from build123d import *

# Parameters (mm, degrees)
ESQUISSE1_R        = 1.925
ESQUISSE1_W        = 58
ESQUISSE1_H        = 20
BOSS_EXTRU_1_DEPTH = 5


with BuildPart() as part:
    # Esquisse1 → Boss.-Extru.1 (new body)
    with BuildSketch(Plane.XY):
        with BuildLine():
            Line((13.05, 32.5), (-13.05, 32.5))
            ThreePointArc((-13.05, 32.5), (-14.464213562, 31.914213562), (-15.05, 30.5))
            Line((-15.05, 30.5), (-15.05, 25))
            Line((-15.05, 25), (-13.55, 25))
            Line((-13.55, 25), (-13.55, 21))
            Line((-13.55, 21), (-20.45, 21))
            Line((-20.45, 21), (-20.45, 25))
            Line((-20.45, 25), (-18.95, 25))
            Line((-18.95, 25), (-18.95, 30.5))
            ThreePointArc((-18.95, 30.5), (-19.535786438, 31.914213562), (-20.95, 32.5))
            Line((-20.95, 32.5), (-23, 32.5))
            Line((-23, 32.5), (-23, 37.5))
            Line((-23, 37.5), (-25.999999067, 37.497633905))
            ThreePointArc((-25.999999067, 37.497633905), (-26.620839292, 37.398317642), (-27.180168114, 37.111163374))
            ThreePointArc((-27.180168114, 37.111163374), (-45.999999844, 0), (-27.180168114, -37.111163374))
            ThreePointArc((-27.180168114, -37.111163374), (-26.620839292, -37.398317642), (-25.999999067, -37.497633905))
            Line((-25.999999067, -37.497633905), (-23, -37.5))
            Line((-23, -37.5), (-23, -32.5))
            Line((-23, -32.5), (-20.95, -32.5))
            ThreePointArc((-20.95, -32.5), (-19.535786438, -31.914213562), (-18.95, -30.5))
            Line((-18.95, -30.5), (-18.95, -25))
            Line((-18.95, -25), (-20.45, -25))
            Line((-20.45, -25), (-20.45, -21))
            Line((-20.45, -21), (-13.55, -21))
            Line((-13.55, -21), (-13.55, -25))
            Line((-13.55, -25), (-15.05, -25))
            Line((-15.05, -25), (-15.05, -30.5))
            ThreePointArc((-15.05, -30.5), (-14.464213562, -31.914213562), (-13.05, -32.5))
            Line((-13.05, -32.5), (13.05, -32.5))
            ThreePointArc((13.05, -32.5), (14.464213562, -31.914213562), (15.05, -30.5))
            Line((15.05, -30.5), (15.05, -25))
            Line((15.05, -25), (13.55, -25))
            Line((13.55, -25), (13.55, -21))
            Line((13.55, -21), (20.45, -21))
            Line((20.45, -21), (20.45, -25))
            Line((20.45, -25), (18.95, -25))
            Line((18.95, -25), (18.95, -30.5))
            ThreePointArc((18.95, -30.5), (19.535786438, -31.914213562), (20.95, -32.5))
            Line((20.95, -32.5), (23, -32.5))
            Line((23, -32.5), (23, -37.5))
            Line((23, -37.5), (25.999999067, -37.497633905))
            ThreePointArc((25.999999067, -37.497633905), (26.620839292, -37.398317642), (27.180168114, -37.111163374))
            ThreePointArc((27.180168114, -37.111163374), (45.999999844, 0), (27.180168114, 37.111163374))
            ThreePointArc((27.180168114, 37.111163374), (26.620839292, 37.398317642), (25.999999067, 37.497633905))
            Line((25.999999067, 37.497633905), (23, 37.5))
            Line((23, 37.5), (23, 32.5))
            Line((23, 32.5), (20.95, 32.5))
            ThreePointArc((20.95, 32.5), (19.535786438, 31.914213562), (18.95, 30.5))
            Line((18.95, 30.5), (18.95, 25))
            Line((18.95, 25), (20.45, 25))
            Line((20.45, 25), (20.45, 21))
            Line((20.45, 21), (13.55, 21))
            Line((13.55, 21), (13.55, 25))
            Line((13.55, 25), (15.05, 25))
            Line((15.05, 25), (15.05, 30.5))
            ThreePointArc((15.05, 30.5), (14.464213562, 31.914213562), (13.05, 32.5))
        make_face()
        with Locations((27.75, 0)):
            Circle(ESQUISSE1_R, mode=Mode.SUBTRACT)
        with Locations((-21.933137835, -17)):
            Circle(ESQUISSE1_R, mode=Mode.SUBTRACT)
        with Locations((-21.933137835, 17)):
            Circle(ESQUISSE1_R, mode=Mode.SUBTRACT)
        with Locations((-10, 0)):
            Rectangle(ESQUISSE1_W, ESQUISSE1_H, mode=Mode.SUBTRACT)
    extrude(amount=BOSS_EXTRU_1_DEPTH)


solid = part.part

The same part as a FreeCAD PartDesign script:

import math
import FreeCAD as App
import Part
import Sketcher
Q = App.Units.Quantity

doc = App.newDocument("Part")
params = doc.addObject("Spreadsheet::Sheet", "Params")
for row, (alias, value) in enumerate([
    ("sketch1_radius", "2 mm"),
    ("sketch1_radius2", "46 mm"),
    ("sketch1_diameter", "3.85 mm"),
    ("sketch1_width", "58 mm"),
    ("sketch1_height", "4 mm"),
    ("pad1_length", "5 mm"),
], start=1):
    params.set(f"A{row}", alias)
    params.set(f"B{row}", "=" + value)
    params.setAlias(f"B{row}", alias)

body = doc.addObject("PartDesign::Body", "Body")

sketch1 = body.newObject("Sketcher::SketchObject", "Sketch")
sketch1.AttachmentSupport = (doc.getObject("XY_Plane"), [""])
sketch1.MapMode = "FlatFace"
sketch1.addGeometry(Part.LineSegment(App.Vector(13.1, 32.5, 0), App.Vector(-13.1, 32.5, 0)), False)
sketch1.addGeometry(Part.ArcOfCircle(Part.Circle(App.Vector(-13, 30.5, 0), App.Vector(0, 0, 1), 2), math.radians(90), math.radians(180)), False)
sketch1.addGeometry(Part.LineSegment(App.Vector(-15.1, 30.5, 0), App.Vector(-15.1, 25, 0)), False)
sketch1.addGeometry(Part.LineSegment(App.Vector(-15.1, 25, 0), App.Vector(-13.6, 25, 0)), False)
sketch1.addGeometry(Part.LineSegment(App.Vector(-13.6, 25, 0), App.Vector(-13.6, 21, 0)), False)
sketch1.addGeometry(Part.LineSegment(App.Vector(-13.6, 21, 0), App.Vector(-20.4, 21, 0)), False)
sketch1.addGeometry(Part.LineSegment(App.Vector(-20.4, 21, 0), App.Vector(-20.4, 25, 0)), False)
sketch1.addGeometry(Part.LineSegment(App.Vector(-20.4, 25, 0), App.Vector(-18.9, 25, 0)), False)
sketch1.addGeometry(Part.LineSegment(App.Vector(-18.9, 25, 0), App.Vector(-18.9, 30.5, 0)), False)
sketch1.addGeometry(Part.ArcOfCircle(Part.Circle(App.Vector(-21, 30.5, 0), App.Vector(0, 0, 1), 2), math.radians(0), math.radians(90)), False)
sketch1.addGeometry(Part.LineSegment(App.Vector(-20.9, 32.5, 0), App.Vector(-23, 32.5, 0)), False)
sketch1.addGeometry(Part.LineSegment(App.Vector(-23, 32.5, 0), App.Vector(-23, 37.5, 0)), False)
sketch1.addGeometry(Part.LineSegment(App.Vector(-23, 37.5, 0), App.Vector(-26, 37.5, 0)), False)
sketch1.addGeometry(Part.ArcOfCircle(Part.Circle(App.Vector(-26, 35.5, 0), App.Vector(0, 0, 1), 2), math.radians(90), math.radians(126)), False)
sketch1.addGeometry(Part.ArcOfCircle(Part.Circle(App.Vector(0, 0, 0), App.Vector(0, 0, 1), 46), math.radians(126), math.radians(234)), False)
sketch1.addGeometry(Part.ArcOfCircle(Part.Circle(App.Vector(-26, -35.5, 0), App.Vector(0, 0, 1), 2), math.radians(-126), math.radians(-90)), False)
sketch1.addGeometry(Part.LineSegment(App.Vector(-26, -37.5, 0), App.Vector(-23, -37.5, 0)), False)
sketch1.addGeometry(Part.LineSegment(App.Vector(-23, -37.5, 0), App.Vector(-23, -32.5, 0)), False)
sketch1.addGeometry(Part.LineSegment(App.Vector(-23, -32.5, 0), App.Vector(-20.9, -32.5, 0)), False)
sketch1.addGeometry(Part.ArcOfCircle(Part.Circle(App.Vector(-21, -30.5, 0), App.Vector(0, 0, 1), 2), math.radians(-90), math.radians(0)), False)
sketch1.addGeometry(Part.LineSegment(App.Vector(-18.9, -30.5, 0), App.Vector(-18.9, -25, 0)), False)
sketch1.addGeometry(Part.LineSegment(App.Vector(-18.9, -25, 0), App.Vector(-20.4, -25, 0)), False)
sketch1.addGeometry(Part.LineSegment(App.Vector(-20.4, -25, 0), App.Vector(-20.4, -21, 0)), False)
sketch1.addGeometry(Part.LineSegment(App.Vector(-20.4, -21, 0), App.Vector(-13.6, -21, 0)), False)
sketch1.addGeometry(Part.LineSegment(App.Vector(-13.6, -21, 0), App.Vector(-13.6, -25, 0)), False)
sketch1.addGeometry(Part.LineSegment(App.Vector(-13.6, -25, 0), App.Vector(-15.1, -25, 0)), False)
sketch1.addGeometry(Part.LineSegment(App.Vector(-15.1, -25, 0), App.Vector(-15.1, -30.5, 0)), False)
sketch1.addGeometry(Part.ArcOfCircle(Part.Circle(App.Vector(-13, -30.5, 0), App.Vector(0, 0, 1), 2), math.radians(-180), math.radians(-90)), False)
sketch1.addGeometry(Part.LineSegment(App.Vector(-13.1, -32.5, 0), App.Vector(13.1, -32.5, 0)), False)
sketch1.addGeometry(Part.ArcOfCircle(Part.Circle(App.Vector(13, -30.5, 0), App.Vector(0, 0, 1), 2), math.radians(-90), math.radians(0)), False)
sketch1.addGeometry(Part.LineSegment(App.Vector(15.1, -30.5, 0), App.Vector(15.1, -25, 0)), False)
sketch1.addGeometry(Part.LineSegment(App.Vector(15.1, -25, 0), App.Vector(13.6, -25, 0)), False)
sketch1.addGeometry(Part.LineSegment(App.Vector(13.6, -25, 0), App.Vector(13.6, -21, 0)), False)
sketch1.addGeometry(Part.LineSegment(App.Vector(13.6, -21, 0), App.Vector(20.4, -21, 0)), False)
sketch1.addGeometry(Part.LineSegment(App.Vector(20.4, -21, 0), App.Vector(20.4, -25, 0)), False)
sketch1.addGeometry(Part.LineSegment(App.Vector(20.4, -25, 0), App.Vector(18.9, -25, 0)), False)
sketch1.addGeometry(Part.LineSegment(App.Vector(18.9, -25, 0), App.Vector(18.9, -30.5, 0)), False)
sketch1.addGeometry(Part.ArcOfCircle(Part.Circle(App.Vector(21, -30.5, 0), App.Vector(0, 0, 1), 2), math.radians(-180), math.radians(-90)), False)
sketch1.addGeometry(Part.LineSegment(App.Vector(20.9, -32.5, 0), App.Vector(23, -32.5, 0)), False)
sketch1.addGeometry(Part.LineSegment(App.Vector(23, -32.5, 0), App.Vector(23, -37.5, 0)), False)
sketch1.addGeometry(Part.LineSegment(App.Vector(23, -37.5, 0), App.Vector(26, -37.5, 0)), False)
sketch1.addGeometry(Part.ArcOfCircle(Part.Circle(App.Vector(26, -35.5, 0), App.Vector(0, 0, 1), 2), math.radians(-90), math.radians(-54)), False)
sketch1.addGeometry(Part.ArcOfCircle(Part.Circle(App.Vector(0, 0, 0), App.Vector(0, 0, 1), 46), math.radians(-54), math.radians(54)), False)
sketch1.addGeometry(Part.ArcOfCircle(Part.Circle(App.Vector(26, 35.5, 0), App.Vector(0, 0, 1), 2), math.radians(54), math.radians(90)), False)
sketch1.addGeometry(Part.LineSegment(App.Vector(26, 37.5, 0), App.Vector(23, 37.5, 0)), False)
sketch1.addGeometry(Part.LineSegment(App.Vector(23, 37.5, 0), App.Vector(23, 32.5, 0)), False)
sketch1.addGeometry(Part.LineSegment(App.Vector(23, 32.5, 0), App.Vector(20.9, 32.5, 0)), False)
sketch1.addGeometry(Part.ArcOfCircle(Part.Circle(App.Vector(21, 30.5, 0), App.Vector(0, 0, 1), 2), math.radians(90), math.radians(180)), False)
sketch1.addGeometry(Part.LineSegment(App.Vector(18.9, 30.5, 0), App.Vector(18.9, 25, 0)), False)
sketch1.addGeometry(Part.LineSegment(App.Vector(18.9, 25, 0), App.Vector(20.4, 25, 0)), False)
sketch1.addGeometry(Part.LineSegment(App.Vector(20.4, 25, 0), App.Vector(20.4, 21, 0)), False)
sketch1.addGeometry(Part.LineSegment(App.Vector(20.4, 21, 0), App.Vector(13.6, 21, 0)), False)
sketch1.addGeometry(Part.LineSegment(App.Vector(13.6, 21, 0), App.Vector(13.6, 25, 0)), False)
sketch1.addGeometry(Part.LineSegment(App.Vector(13.6, 25, 0), App.Vector(15.1, 25, 0)), False)
sketch1.addGeometry(Part.LineSegment(App.Vector(15.1, 25, 0), App.Vector(15.1, 30.5, 0)), False)
sketch1.addGeometry(Part.ArcOfCircle(Part.Circle(App.Vector(13, 30.5, 0), App.Vector(0, 0, 1), 2), math.radians(0), math.radians(90)), False)
sketch1.addGeometry(Part.Circle(App.Vector(-21.9, -17, 0), App.Vector(0, 0, 1), 1.9), False)
sketch1.addGeometry(Part.LineSegment(App.Vector(19, -10, 0), App.Vector(-39, -10, 0)), False)
sketch1.addGeometry(Part.LineSegment(App.Vector(-39, -10, 0), App.Vector(-39, 10, 0)), False)
sketch1.addGeometry(Part.LineSegment(App.Vector(-39, 10, 0), App.Vector(19, 10, 0)), False)
sketch1.addGeometry(Part.LineSegment(App.Vector(19, 10, 0), App.Vector(19, -10, 0)), False)
sketch1.addGeometry(Part.Circle(App.Vector(-21.9, 17, 0), App.Vector(0, 0, 1), 1.9), False)
sketch1.addGeometry(Part.Circle(App.Vector(27.8, 0, 0), App.Vector(0, 0, 1), 1.9), False)
sketch1.addConstraint(Sketcher.Constraint("Tangent", 0, 2, 1, 1))
sketch1.addConstraint(Sketcher.Constraint("Tangent", 1, 2, 2, 1))
sketch1.addConstraint(Sketcher.Constraint("Coincident", 2, 2, 3, 1))
sketch1.addConstraint(Sketcher.Constraint("Coincident", 3, 2, 4, 1))
sketch1.addConstraint(Sketcher.Constraint("Coincident", 4, 2, 5, 1))
sketch1.addConstraint(Sketcher.Constraint("Coincident", 5, 2, 6, 1))
sketch1.addConstraint(Sketcher.Constraint("Coincident", 6, 2, 7, 1))
sketch1.addConstraint(Sketcher.Constraint("Coincident", 7, 2, 8, 1))
sketch1.addConstraint(Sketcher.Constraint("Tangent", 8, 2, 9, 1))
sketch1.addConstraint(Sketcher.Constraint("Tangent", 9, 2, 10, 1))
sketch1.addConstraint(Sketcher.Constraint("Coincident", 10, 2, 11, 1))
sketch1.addConstraint(Sketcher.Constraint("Coincident", 11, 2, 12, 1))
sketch1.addConstraint(Sketcher.Constraint("Tangent", 12, 2, 13, 1))
sketch1.addConstraint(Sketcher.Constraint("Tangent", 13, 2, 14, 1))
sketch1.addConstraint(Sketcher.Constraint("Tangent", 14, 2, 15, 1))
sketch1.addConstraint(Sketcher.Constraint("Tangent", 15, 2, 16, 1))
sketch1.addConstraint(Sketcher.Constraint("Coincident", 16, 2, 17, 1))
sketch1.addConstraint(Sketcher.Constraint("Coincident", 17, 2, 18, 1))
sketch1.addConstraint(Sketcher.Constraint("Tangent", 18, 2, 19, 1))
sketch1.addConstraint(Sketcher.Constraint("Tangent", 19, 2, 20, 1))
sketch1.addConstraint(Sketcher.Constraint("Coincident", 20, 2, 21, 1))
sketch1.addConstraint(Sketcher.Constraint("Coincident", 21, 2, 22, 1))
sketch1.addConstraint(Sketcher.Constraint("Coincident", 22, 2, 23, 1))
sketch1.addConstraint(Sketcher.Constraint("Coincident", 23, 2, 24, 1))
sketch1.addConstraint(Sketcher.Constraint("Coincident", 24, 2, 25, 1))
sketch1.addConstraint(Sketcher.Constraint("Coincident", 25, 2, 26, 1))
sketch1.addConstraint(Sketcher.Constraint("Tangent", 26, 2, 27, 1))
sketch1.addConstraint(Sketcher.Constraint("Tangent", 27, 2, 28, 1))
sketch1.addConstraint(Sketcher.Constraint("Tangent", 28, 2, 29, 1))
sketch1.addConstraint(Sketcher.Constraint("Tangent", 29, 2, 30, 1))
sketch1.addConstraint(Sketcher.Constraint("Coincident", 30, 2, 31, 1))
sketch1.addConstraint(Sketcher.Constraint("Coincident", 31, 2, 32, 1))
sketch1.addConstraint(Sketcher.Constraint("Coincident", 32, 2, 33, 1))
sketch1.addConstraint(Sketcher.Constraint("Coincident", 33, 2, 34, 1))
sketch1.addConstraint(Sketcher.Constraint("Coincident", 34, 2, 35, 1))
sketch1.addConstraint(Sketcher.Constraint("Coincident", 35, 2, 36, 1))
sketch1.addConstraint(Sketcher.Constraint("Tangent", 36, 2, 37, 1))
sketch1.addConstraint(Sketcher.Constraint("Tangent", 37, 2, 38, 1))
sketch1.addConstraint(Sketcher.Constraint("Coincident", 38, 2, 39, 1))
sketch1.addConstraint(Sketcher.Constraint("Coincident", 39, 2, 40, 1))
sketch1.addConstraint(Sketcher.Constraint("Tangent", 40, 2, 41, 1))
sketch1.addConstraint(Sketcher.Constraint("Tangent", 41, 2, 42, 1))
sketch1.addConstraint(Sketcher.Constraint("Tangent", 42, 2, 43, 1))
sketch1.addConstraint(Sketcher.Constraint("Tangent", 43, 2, 44, 1))
sketch1.addConstraint(Sketcher.Constraint("Coincident", 44, 2, 45, 1))
sketch1.addConstraint(Sketcher.Constraint("Coincident", 45, 2, 46, 1))
sketch1.addConstraint(Sketcher.Constraint("Tangent", 46, 2, 47, 1))
sketch1.addConstraint(Sketcher.Constraint("Tangent", 47, 2, 48, 1))
sketch1.addConstraint(Sketcher.Constraint("Coincident", 48, 2, 49, 1))
sketch1.addConstraint(Sketcher.Constraint("Coincident", 49, 2, 50, 1))
sketch1.addConstraint(Sketcher.Constraint("Coincident", 50, 2, 51, 1))
sketch1.addConstraint(Sketcher.Constraint("Coincident", 51, 2, 52, 1))
sketch1.addConstraint(Sketcher.Constraint("Coincident", 52, 2, 53, 1))
sketch1.addConstraint(Sketcher.Constraint("Coincident", 53, 2, 54, 1))
sketch1.addConstraint(Sketcher.Constraint("Tangent", 54, 2, 55, 1))
sketch1.addConstraint(Sketcher.Constraint("Tangent", 55, 2, 0, 1))
sketch1.addConstraint(Sketcher.Constraint("Coincident", 57, 2, 58, 1))
sketch1.addConstraint(Sketcher.Constraint("Coincident", 58, 2, 59, 1))
sketch1.addConstraint(Sketcher.Constraint("Coincident", 59, 2, 60, 1))
sketch1.addConstraint(Sketcher.Constraint("Coincident", 60, 2, 57, 1))
sketch1.addConstraint(Sketcher.Constraint("Horizontal", 0))
sketch1.addConstraint(Sketcher.Constraint("Vertical", 2))
sketch1.addConstraint(Sketcher.Constraint("Horizontal", 3))
sketch1.addConstraint(Sketcher.Constraint("Vertical", 4))
sketch1.addConstraint(Sketcher.Constraint("Horizontal", 5))
sketch1.addConstraint(Sketcher.Constraint("Vertical", 6))
sketch1.addConstraint(Sketcher.Constraint("Horizontal", 7))
sketch1.addConstraint(Sketcher.Constraint("Vertical", 8))
sketch1.addConstraint(Sketcher.Constraint("Horizontal", 10))
sketch1.addConstraint(Sketcher.Constraint("Vertical", 11))
sketch1.addConstraint(Sketcher.Constraint("Vertical", 17))
sketch1.addConstraint(Sketcher.Constraint("Horizontal", 18))
sketch1.addConstraint(Sketcher.Constraint("Vertical", 20))
sketch1.addConstraint(Sketcher.Constraint("Horizontal", 21))
sketch1.addConstraint(Sketcher.Constraint("Vertical", 22))
sketch1.addConstraint(Sketcher.Constraint("Horizontal", 23))
sketch1.addConstraint(Sketcher.Constraint("Vertical", 24))
sketch1.addConstraint(Sketcher.Constraint("Horizontal", 25))
sketch1.addConstraint(Sketcher.Constraint("Vertical", 26))
sketch1.addConstraint(Sketcher.Constraint("Horizontal", 28))
sketch1.addConstraint(Sketcher.Constraint("Vertical", 30))
sketch1.addConstraint(Sketcher.Constraint("Horizontal", 31))
sketch1.addConstraint(Sketcher.Constraint("Vertical", 32))
sketch1.addConstraint(Sketcher.Constraint("Horizontal", 33))
sketch1.addConstraint(Sketcher.Constraint("Vertical", 34))
sketch1.addConstraint(Sketcher.Constraint("Horizontal", 35))
sketch1.addConstraint(Sketcher.Constraint("Vertical", 36))
sketch1.addConstraint(Sketcher.Constraint("Horizontal", 38))
sketch1.addConstraint(Sketcher.Constraint("Vertical", 39))
sketch1.addConstraint(Sketcher.Constraint("Vertical", 45))
sketch1.addConstraint(Sketcher.Constraint("Horizontal", 46))
sketch1.addConstraint(Sketcher.Constraint("Vertical", 48))
sketch1.addConstraint(Sketcher.Constraint("Horizontal", 49))
sketch1.addConstraint(Sketcher.Constraint("Vertical", 50))
sketch1.addConstraint(Sketcher.Constraint("Horizontal", 51))
sketch1.addConstraint(Sketcher.Constraint("Vertical", 52))
sketch1.addConstraint(Sketcher.Constraint("Horizontal", 53))
sketch1.addConstraint(Sketcher.Constraint("Vertical", 54))
sketch1.addConstraint(Sketcher.Constraint("Horizontal", 57))
sketch1.addConstraint(Sketcher.Constraint("Vertical", 58))
sketch1.addConstraint(Sketcher.Constraint("Horizontal", 59))
sketch1.addConstraint(Sketcher.Constraint("Vertical", 60))
sketch1.addConstraint(Sketcher.Constraint("Coincident", 14, 3, -1, 1))
sketch1.addConstraint(Sketcher.Constraint("Coincident", 42, 3, -1, 1))
sketch1.addConstraint(Sketcher.Constraint("Equal", 1, 9))
sketch1.addConstraint(Sketcher.Constraint("Equal", 9, 13))
sketch1.addConstraint(Sketcher.Constraint("Equal", 13, 15))
sketch1.addConstraint(Sketcher.Constraint("Equal", 15, 19))
sketch1.addConstraint(Sketcher.Constraint("Equal", 19, 27))
sketch1.addConstraint(Sketcher.Constraint("Equal", 27, 29))
sketch1.addConstraint(Sketcher.Constraint("Equal", 29, 37))
sketch1.addConstraint(Sketcher.Constraint("Equal", 37, 41))
sketch1.addConstraint(Sketcher.Constraint("Equal", 14, 42))
sketch1.addConstraint(Sketcher.Constraint("Equal", 41, 43))
sketch1.addConstraint(Sketcher.Constraint("Equal", 43, 47))
sketch1.addConstraint(Sketcher.Constraint("Equal", 47, 55))
sketch1.addConstraint(Sketcher.Constraint("Equal", 56, 61))
sketch1.addConstraint(Sketcher.Constraint("Equal", 61, 62))
sketch1.addConstraint(Sketcher.Constraint("Symmetric", 1, 3, 29, 3, -1, 1))
sketch1.addConstraint(Sketcher.Constraint("Symmetric", 9, 3, 37, 3, -1, 1))
sketch1.addConstraint(Sketcher.Constraint("Symmetric", 19, 3, 47, 3, -1, 1))
sketch1.addConstraint(Sketcher.Constraint("Symmetric", 3, 2, 31, 2, -1, 1))
sketch1.addConstraint(Sketcher.Constraint("Symmetric", 5, 2, 33, 2, -1, 1))
sketch1.addConstraint(Sketcher.Constraint("Symmetric", 11, 2, 39, 2, -1, 1))
sketch1.addConstraint(Sketcher.Constraint("Symmetric", 15, 2, 43, 2, -1, 1))
sketch1.addConstraint(Sketcher.Constraint("Symmetric", 21, 2, 49, 2, -1, 1))
sketch1.addConstraint(Sketcher.Constraint("Symmetric", 23, 2, 51, 2, -1, 1))
sketch1.addConstraint(Sketcher.Constraint("Symmetric", 25, 2, 53, 2, -1, 1))
sketch1.addConstraint(Sketcher.Constraint("Symmetric", 19, 3, 37, 3, -2))
sketch1.addConstraint(Sketcher.Constraint("Symmetric", 25, 2, 30, 2, -2))
sketch1.addConstraint(Sketcher.Constraint("Symmetric", 23, 2, 32, 2, -2))
sketch1.addConstraint(Sketcher.Constraint("Symmetric", 21, 2, 34, 2, -2))
sketch1.addConstraint(Sketcher.Constraint("Symmetric", 16, 2, 39, 2, -2))
sketch1.addConstraint(Sketcher.Constraint("Symmetric", 56, 3, 61, 3, -1))
sketch1.addConstraint(Sketcher.Constraint("PointOnObject", 62, 3, -1))
sketch1.addConstraint(Sketcher.Constraint("Parallel", 12, 40))
sketch1.addConstraint(Sketcher.Constraint("Horizontal", 1, 3, 9, 3))
sketch1.addConstraint(Sketcher.Constraint("Horizontal", 15, 3, 41, 3))
sketch1.addConstraint(Sketcher.Constraint("Horizontal", 3, 2, 6, 2))
sketch1.addConstraint(Sketcher.Constraint("Horizontal", 21, 2, 24, 2))
sketch1.addConstraint(Sketcher.Constraint("Vertical", 39, 2, 44, 2))
sketch1.addConstraint(Sketcher.Constraint("Equal", 3, 7))
sketch1.addConstraint(Sketcher.Constraint("Radius", 1, Q("2 mm")))
sketch1.addConstraint(Sketcher.Constraint("Radius", 14, Q("46 mm")))
sketch1.addConstraint(Sketcher.Constraint("Diameter", 56, Q("3.85 mm")))
sketch1.addConstraint(Sketcher.Constraint("DistanceX", 57, 2, 57, 1, Q("58 mm")))
sketch1.addConstraint(Sketcher.Constraint("DistanceY", 4, 2, 4, 1, Q("4 mm")))
sketch1.addConstraint(Sketcher.Constraint("DistanceY", 11, 1, 11, 2, Q("5 mm")))
sketch1.addConstraint(Sketcher.Constraint("DistanceY", 58, 1, 58, 2, Q("20 mm")))
sketch1.addConstraint(Sketcher.Constraint("Distance", 12, Q("3 mm")))
sketch1.addConstraint(Sketcher.Constraint("DistanceX", 0, 2, 0, 1, Q("26.1 mm")))
sketch1.addConstraint(Sketcher.Constraint("DistanceX", 3, 1, 3, 2, Q("1.5 mm")))
sketch1.addConstraint(Sketcher.Constraint("DistanceX", 5, 2, 5, 1, Q("6.9 mm")))
sketch1.addConstraint(Sketcher.Constraint("DistanceY", 2, 2, 2, 1, Q("5.5 mm")))
sketch1.addConstraint(Sketcher.Constraint("DistanceY", 56, 3, -1, 1, Q("17 mm")))
sketch1.addConstraint(Sketcher.Constraint("DistanceY", -1, 1, 2, 2, Q("25 mm")))
sketch1.addConstraint(Sketcher.Constraint("DistanceX", 10, 2, -1, 1, Q("23 mm")))
sketch1.addConstraint(Sketcher.Constraint("DistanceX", 57, 2, -1, 1, Q("39 mm")))
sketch1.addConstraint(Sketcher.Constraint("DistanceY", 57, 2, -1, 1, Q("10 mm")))
sketch1.addConstraint(Sketcher.Constraint("DistanceX", -1, 1, 62, 3, Q("27.75 mm")))
sketch1.addConstraint(Sketcher.Constraint("DistanceX", 56, 3, -1, 1, Q("21.933138 mm")))
sketch1.setExpression("Constraints[142]", "Params.sketch1_radius")
sketch1.setExpression("Constraints[143]", "Params.sketch1_radius2")
sketch1.setExpression("Constraints[144]", "Params.sketch1_diameter")
sketch1.setExpression("Constraints[145]", "Params.sketch1_width")
sketch1.setExpression("Constraints[146]", "Params.sketch1_height")
pad1 = body.newObject("PartDesign::Pad", "Pad")
pad1.Profile = sketch1
pad1.setExpression("Length", "Params.pad1_length")

doc.recompute()
